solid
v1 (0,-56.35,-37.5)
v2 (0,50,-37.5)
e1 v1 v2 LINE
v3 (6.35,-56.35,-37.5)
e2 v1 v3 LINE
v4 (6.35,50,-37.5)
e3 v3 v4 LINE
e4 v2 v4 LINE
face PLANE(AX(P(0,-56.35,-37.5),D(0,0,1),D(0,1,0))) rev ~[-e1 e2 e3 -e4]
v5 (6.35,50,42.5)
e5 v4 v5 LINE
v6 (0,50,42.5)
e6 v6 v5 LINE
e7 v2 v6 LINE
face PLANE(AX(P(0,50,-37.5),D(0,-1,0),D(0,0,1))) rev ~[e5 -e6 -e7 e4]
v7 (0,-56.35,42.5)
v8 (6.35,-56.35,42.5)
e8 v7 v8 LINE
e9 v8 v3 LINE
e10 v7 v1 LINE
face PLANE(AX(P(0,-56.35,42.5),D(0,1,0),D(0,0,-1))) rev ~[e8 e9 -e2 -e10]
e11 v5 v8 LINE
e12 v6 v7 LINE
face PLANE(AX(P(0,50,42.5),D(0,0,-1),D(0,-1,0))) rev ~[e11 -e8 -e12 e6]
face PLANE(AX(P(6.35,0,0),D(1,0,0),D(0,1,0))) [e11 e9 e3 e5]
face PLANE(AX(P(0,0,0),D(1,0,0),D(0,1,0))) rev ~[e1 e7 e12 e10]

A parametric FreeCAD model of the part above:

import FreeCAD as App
import Part
import Sketcher
from FreeCAD import Vector
Q = App.Units.Quantity

doc = App.newDocument("Part")
body = doc.addObject("PartDesign::Body", "Body")

sketch1 = body.newObject("Sketcher::SketchObject", "Sketch")
sketch1.AttachmentSupport = (doc.getObject("YZ_Plane"), [""])
sketch1.MapMode = "FlatFace"
sketch1.addGeometry([
    Part.LineSegment(Vector(50, -37.5, 0), Vector(50, 42.5, 0)),
    Part.LineSegment(Vector(50, 42.5, 0), Vector(-56.35, 42.5, 0)),
    Part.LineSegment(Vector(-56.35, 42.5, 0), Vector(-56.35, -37.5, 0)),
    Part.LineSegment(Vector(-56.35, -37.5, 0), Vector(50, -37.5, 0)),
], False)
sketch1.addConstraint([
    Sketcher.Constraint("Coincident", 0, 2, 1, 1),
    Sketcher.Constraint("Coincident", 1, 2, 2, 1),
    Sketcher.Constraint("Coincident", 2, 2, 3, 1),
    Sketcher.Constraint("Coincident", 3, 2, 0, 1),
    Sketcher.Constraint("Vertical", 0),
    Sketcher.Constraint("Horizontal", 1),
    Sketcher.Constraint("Vertical", 2),
    Sketcher.Constraint("Horizontal", 3),
    Sketcher.Constraint("DistanceY", 0, 1, 0, 2, Q("80 mm")),
    Sketcher.Constraint("DistanceX", -1, 1, 0, 2, Q("50 mm")),
    Sketcher.Constraint("DistanceX", 1, 2, 1, 1, Q("106.35 mm")),
    Sketcher.Constraint("DistanceY", -1, 1, 0, 2, Q("42.5 mm")),
])
pad1 = body.newObject("PartDesign::Pad", "Pad")
pad1.Profile = sketch1
pad1.Length = 6.35

doc.recompute()
